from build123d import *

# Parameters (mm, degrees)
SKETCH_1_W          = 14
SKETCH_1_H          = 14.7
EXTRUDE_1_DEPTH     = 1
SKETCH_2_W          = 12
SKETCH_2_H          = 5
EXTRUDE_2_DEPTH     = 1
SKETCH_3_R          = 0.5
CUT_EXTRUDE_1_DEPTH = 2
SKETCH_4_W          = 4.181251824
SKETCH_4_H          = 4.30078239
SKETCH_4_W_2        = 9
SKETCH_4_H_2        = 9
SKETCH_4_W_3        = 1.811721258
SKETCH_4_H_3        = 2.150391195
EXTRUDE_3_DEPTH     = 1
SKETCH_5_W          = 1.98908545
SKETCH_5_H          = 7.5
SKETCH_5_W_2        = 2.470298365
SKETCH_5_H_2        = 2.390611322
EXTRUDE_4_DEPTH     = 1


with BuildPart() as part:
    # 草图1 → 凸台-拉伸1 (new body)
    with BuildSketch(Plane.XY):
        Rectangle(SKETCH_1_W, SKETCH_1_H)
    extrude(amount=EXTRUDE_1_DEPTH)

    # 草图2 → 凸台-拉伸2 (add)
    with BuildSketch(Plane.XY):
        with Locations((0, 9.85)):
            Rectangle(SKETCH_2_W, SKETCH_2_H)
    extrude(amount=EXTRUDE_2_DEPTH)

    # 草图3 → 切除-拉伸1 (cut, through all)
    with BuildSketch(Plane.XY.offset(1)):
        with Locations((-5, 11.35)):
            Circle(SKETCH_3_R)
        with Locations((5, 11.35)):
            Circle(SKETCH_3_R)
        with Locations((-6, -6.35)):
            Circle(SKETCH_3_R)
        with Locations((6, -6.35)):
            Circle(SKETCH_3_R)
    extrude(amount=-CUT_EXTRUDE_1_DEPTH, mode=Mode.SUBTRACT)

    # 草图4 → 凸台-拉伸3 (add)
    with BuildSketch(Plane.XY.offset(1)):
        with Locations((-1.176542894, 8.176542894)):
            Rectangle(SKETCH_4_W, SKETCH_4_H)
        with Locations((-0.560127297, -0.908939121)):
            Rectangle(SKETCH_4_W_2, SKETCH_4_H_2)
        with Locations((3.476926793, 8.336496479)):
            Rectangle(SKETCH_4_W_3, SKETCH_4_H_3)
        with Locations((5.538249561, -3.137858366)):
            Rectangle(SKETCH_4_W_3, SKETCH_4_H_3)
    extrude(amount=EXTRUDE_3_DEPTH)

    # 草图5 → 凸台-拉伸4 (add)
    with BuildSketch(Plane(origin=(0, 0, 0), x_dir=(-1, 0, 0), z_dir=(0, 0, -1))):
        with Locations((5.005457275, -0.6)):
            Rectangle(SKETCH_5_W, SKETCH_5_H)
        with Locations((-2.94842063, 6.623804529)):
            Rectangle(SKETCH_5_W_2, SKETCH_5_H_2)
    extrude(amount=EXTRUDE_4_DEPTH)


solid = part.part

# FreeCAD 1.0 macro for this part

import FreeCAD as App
import Part
import Sketcher
from FreeCAD import Vector
Q = App.Units.Quantity


def add_polygon(sketch, points):
    """Adds a closed chain of lines whose ends are joined by coincident constraints."""
    first, n = sketch.GeometryCount, len(points)
    for a, b in zip(points, points[1:] + points[:1]):
        sketch.addGeometry(Part.LineSegment(App.Vector(*a, 0), App.Vector(*b, 0)), False)
    for i in range(n):
        sketch.addConstraint(Sketcher.Constraint("Coincident", first + i, 2, first + (i + 1) % n, 1))

doc = App.newDocument("Part")
params = doc.addObject("Spreadsheet::Sheet", "Params")
for row, (alias, value) in enumerate([
    ("sketch1_width", "14 mm"),
    ("sketch1_height", "14.7 mm"),
    ("pad1_length", "1 mm"),
    ("sketch2_width", "12 mm"),
    ("sketch2_height", "5 mm"),
    ("pad2_length", "1 mm"),
    ("sketch3_diameter", "1 mm"),
    ("sketch4_width", "9 mm"),
    ("pad3_length", "1 mm"),
    ("sketch5_height", "7.5 mm"),
    ("pad4_length", "1 mm"),
], start=1):
    params.set(f"A{row}", alias)
    params.set(f"B{row}", "=" + value)
    params.setAlias(f"B{row}", alias)

body = doc.addObject("PartDesign::Body", "Body")

sketch1 = body.newObject("Sketcher::SketchObject", "Sketch")
sketch1.AttachmentSupport = (doc.getObject("XY_Plane"), [""])
sketch1.MapMode = "FlatFace"
add_polygon(sketch1, [(-7, 7), (-7, -7), (7, -7), (7, 7)])
sketch1.addConstraint([
    Sketcher.Constraint("Vertical", 0),
    Sketcher.Constraint("Horizontal", 1),
    Sketcher.Constraint("Vertical", 2),
    Sketcher.Constraint("Horizontal", 3),
    Sketcher.Constraint("Symmetric", 0, 2, 2, 2, -1, 1),
    Sketcher.Constraint("DistanceX", 1, 1, 1, 2, Q("14 mm")),
    Sketcher.Constraint("DistanceY", 0, 2, 0, 1, Q("14.7 mm")),
])
sketch1.setExpression("Constraints[9]", "Params.sketch1_width")
sketch1.setExpression("Constraints[10]", "Params.sketch1_height")
pad1 = body.newObject("PartDesign::Pad", "Pad")
pad1.Profile = sketch1
pad1.setExpression("Length", "Params.pad1_length")

sketch2 = body.newObject("Sketcher::SketchObject", "Sketch001")
sketch2.AttachmentSupport = (doc.getObject("XY_Plane"), [""])
sketch2.MapMode = "FlatFace"
add_polygon(sketch2, [(-6, 12), (-6, 7), (6, 7), (6, 12)])
sketch2.addConstraint([
    Sketcher.Constraint("Vertical", 0),
    Sketcher.Constraint("Horizontal", 1),
    Sketcher.Constraint("Vertical", 2),
    Sketcher.Constraint("Horizontal", 3),
    Sketcher.Constraint("DistanceX", 1, 1, 1, 2, Q("12 mm")),
    Sketcher.Constraint("DistanceY", 0, 2, 0, 1, Q("5 mm")),
    Sketcher.Constraint("DistanceX", 0, 2, -1, 1, Q("6 mm")),
    Sketcher.Constraint("DistanceY", -1, 1, 0, 2, Q("7.35 mm")),
])
sketch2.setExpression("Constraints[8]", "Params.sketch2_width")
sketch2.setExpression("Constraints[9]", "Params.sketch2_height")
pad2 = body.newObject("PartDesign::Pad", "Pad001")
pad2.Profile = sketch2
pad2.setExpression("Length", "Params.pad2_length")

sketch3 = body.newObject("Sketcher::SketchObject", "Sketch002")
sketch3.AttachmentSupport = (doc.getObject("XY_Plane"), [""])
sketch3.MapMode = "FlatFace"
sketch3.AttachmentOffset = App.Placement(Vector(0, 0, 1), App.Rotation())
sketch3.addGeometry([
    Part.Circle(Vector(-5, 11.3, 0), Vector(0, 0, 1), 0.5),
    Part.Circle(Vector(5, 11.3, 0), Vector(0, 0, 1), 0.5),
    Part.Circle(Vector(-6, -6.3, 0), Vector(0, 0, 1), 0.5),
    Part.Circle(Vector(6, -6.3, 0), Vector(0, 0, 1), 0.5),
], False)
sketch3.addConstraint([
    Sketcher.Constraint("Equal", 0, 1),
    Sketcher.Constraint("Equal", 1, 2),
    Sketcher.Constraint("Equal", 2, 3),
    Sketcher.Constraint("Symmetric", 0, 3, 1, 3, -2),
    Sketcher.Constraint("Symmetric", 2, 3, 3, 3, -2),
    Sketcher.Constraint("Diameter", 0, Q("1 mm")),
    Sketcher.Constraint("DistanceX", 0, 3, -1, 1, Q("5 mm")),
    Sketcher.Constraint("DistanceX", 2, 3, -1, 1, Q("6 mm")),
    Sketcher.Constraint("DistanceY", 2, 3, 0, 3, Q("17.7 mm")),
    Sketcher.Constraint("DistanceY", -1, 1, 0, 3, Q("11.35 mm")),
])
sketch3.setExpression("Constraints[5]", "Params.sketch3_diameter")
pocket1 = body.newObject("PartDesign::Pocket", "Pocket")
pocket1.Profile = sketch3
pocket1.Type = "ThroughAll"

sketch4 = body.newObject("Sketcher::SketchObject", "Sketch003")
sketch4.AttachmentSupport = (doc.getObject("XY_Plane"), [""])
sketch4.MapMode = "FlatFace"
sketch4.AttachmentOffset = App.Placement(Vector(0, 0, 1), App.Rotation())
add_polygon(sketch4, [(-3.3, 10.3), (-3.3, 6), (0.9, 6), (0.9, 10.3)])
add_polygon(sketch4, [(-5.1, 3.6), (-5.1, -5.4), (3.9, -5.4), (3.9, 3.6)])
add_polygon(sketch4, [(2.6, 9.4), (2.6, 7.3), (4.4, 7.3), (4.4, 9.4)])
add_polygon(sketch4, [(4.6, -2.1), (4.6, -4.2), (6.4, -4.2), (6.4, -2.1)])
sketch4.addConstraint([
    Sketcher.Constraint("Vertical", 0),
    Sketcher.Constraint("Horizontal", 1),
    Sketcher.Constraint("Vertical", 2),
    Sketcher.Constraint("Horizontal", 3),
    Sketcher.Constraint("Vertical", 4),
    Sketcher.Constraint("Horizontal", 5),
    Sketcher.Constraint("Vertical", 6),
    Sketcher.Constraint("Horizontal", 7),
    Sketcher.Constraint("Vertical", 8),
    Sketcher.Constraint("Horizontal", 9),
    Sketcher.Constraint("Vertical", 10),
    Sketcher.Constraint("Horizontal", 11),
    Sketcher.Constraint("Vertical", 12),
    Sketcher.Constraint("Horizontal", 13),
    Sketcher.Constraint("Vertical", 14),
    Sketcher.Constraint("Horizontal", 15),
    Sketcher.Constraint("Equal", 11, 13),
    Sketcher.Constraint("Equal", 7, 4),
    Sketcher.Constraint("Equal", 10, 12),
    Sketcher.Constraint("DistanceX", 5, 1, 5, 2, Q("9 mm")),
    Sketcher.Constraint("DistanceX", 1, 1, 1, 2, Q("4.181252 mm")),
    Sketcher.Constraint("DistanceX", 9, 1, 9, 2, Q("1.811721 mm")),
    Sketcher.Constraint("DistanceY", 8, 2, 8, 1, Q("2.150391 mm")),
    Sketcher.Constraint("DistanceY", -1, 1, 8, 2, Q("7.261301 mm")),
    Sketcher.Constraint("DistanceX", 9, 2, 12, 2, Q("0.249602 mm")),
    Sketcher.Constraint("DistanceY", 0, 2, 0, 1, Q("4.300782 mm")),
    Sketcher.Constraint("DistanceX", 0, 2, -1, 1, Q("3.267169 mm")),
    Sketcher.Constraint("DistanceY", -1, 1, 0, 2, Q("6.026152 mm")),
    Sketcher.Constraint("DistanceY", 4, 2, -1, 1, Q("5.408939 mm")),
    Sketcher.Constraint("DistanceX", -1, 1, 12, 2, Q("4.632389 mm")),
    Sketcher.Constraint("DistanceX", 4, 2, 0, 2, Q("1.792958 mm")),
    Sketcher.Constraint("DistanceY", 12, 2, -1, 1, Q("4.213054 mm")),
])
sketch4.setExpression("Constraints[35]", "Params.sketch4_width")
pad3 = body.newObject("PartDesign::Pad", "Pad002")
pad3.Profile = sketch4
pad3.setExpression("Length", "Params.pad3_length")

sketch5 = body.newObject("Sketcher::SketchObject", "Sketch004")
sketch5.AttachmentSupport = (doc.getObject("XY_Plane"), [""])
sketch5.MapMode = "FlatFace"
add_polygon(sketch5, [(-4, 3.1), (-4, -4.3), (-6, -4.3), (-6, 3.1)])
add_polygon(sketch5, [(4.2, 7.8), (4.2, 5.4), (1.7, 5.4), (1.7, 7.8)])
sketch5.addConstraint([
    Sketcher.Constraint("Vertical", 0),
    Sketcher.Constraint("Horizontal", 1),
    Sketcher.Constraint("Vertical", 2),
    Sketcher.Constraint("Horizontal", 3),
    Sketcher.Constraint("Vertical", 4),
    Sketcher.Constraint("Horizontal", 5),
    Sketcher.Constraint("Vertical", 6),
    Sketcher.Constraint("Horizontal", 7),
    Sketcher.Constraint("DistanceY", 0, 2, 0, 1, Q("7.5 mm")),
    Sketcher.Constraint("DistanceX", 1, 2, -1, 1, Q("6 mm")),
    Sketcher.Constraint("DistanceY", 0, 2, -1, 1, Q("4.35 mm")),
    Sketcher.Constraint("DistanceX", 5, 2, 5, 1, Q("2.470298 mm")),
    Sketcher.Constraint("DistanceY", 4, 2, 4, 1, Q("2.390611 mm")),
    Sketcher.Constraint("DistanceY", -1, 1, 4, 2, Q("5.428499 mm")),
    Sketcher.Constraint("DistanceX", 1, 2, 1, 1, Q("1.989085 mm")),
    Sketcher.Constraint("DistanceX", -1, 1, 4, 2, Q("4.18357 mm")),
])
sketch5.setExpression("Constraints[16]", "Params.sketch5_height")
pad4 = body.newObject("PartDesign::Pad", "Pad003")
pad4.Profile = sketch5
pad4.setExpression("Length", "Params.pad4_length")
pad4.Reversed = True

doc.recompute()
